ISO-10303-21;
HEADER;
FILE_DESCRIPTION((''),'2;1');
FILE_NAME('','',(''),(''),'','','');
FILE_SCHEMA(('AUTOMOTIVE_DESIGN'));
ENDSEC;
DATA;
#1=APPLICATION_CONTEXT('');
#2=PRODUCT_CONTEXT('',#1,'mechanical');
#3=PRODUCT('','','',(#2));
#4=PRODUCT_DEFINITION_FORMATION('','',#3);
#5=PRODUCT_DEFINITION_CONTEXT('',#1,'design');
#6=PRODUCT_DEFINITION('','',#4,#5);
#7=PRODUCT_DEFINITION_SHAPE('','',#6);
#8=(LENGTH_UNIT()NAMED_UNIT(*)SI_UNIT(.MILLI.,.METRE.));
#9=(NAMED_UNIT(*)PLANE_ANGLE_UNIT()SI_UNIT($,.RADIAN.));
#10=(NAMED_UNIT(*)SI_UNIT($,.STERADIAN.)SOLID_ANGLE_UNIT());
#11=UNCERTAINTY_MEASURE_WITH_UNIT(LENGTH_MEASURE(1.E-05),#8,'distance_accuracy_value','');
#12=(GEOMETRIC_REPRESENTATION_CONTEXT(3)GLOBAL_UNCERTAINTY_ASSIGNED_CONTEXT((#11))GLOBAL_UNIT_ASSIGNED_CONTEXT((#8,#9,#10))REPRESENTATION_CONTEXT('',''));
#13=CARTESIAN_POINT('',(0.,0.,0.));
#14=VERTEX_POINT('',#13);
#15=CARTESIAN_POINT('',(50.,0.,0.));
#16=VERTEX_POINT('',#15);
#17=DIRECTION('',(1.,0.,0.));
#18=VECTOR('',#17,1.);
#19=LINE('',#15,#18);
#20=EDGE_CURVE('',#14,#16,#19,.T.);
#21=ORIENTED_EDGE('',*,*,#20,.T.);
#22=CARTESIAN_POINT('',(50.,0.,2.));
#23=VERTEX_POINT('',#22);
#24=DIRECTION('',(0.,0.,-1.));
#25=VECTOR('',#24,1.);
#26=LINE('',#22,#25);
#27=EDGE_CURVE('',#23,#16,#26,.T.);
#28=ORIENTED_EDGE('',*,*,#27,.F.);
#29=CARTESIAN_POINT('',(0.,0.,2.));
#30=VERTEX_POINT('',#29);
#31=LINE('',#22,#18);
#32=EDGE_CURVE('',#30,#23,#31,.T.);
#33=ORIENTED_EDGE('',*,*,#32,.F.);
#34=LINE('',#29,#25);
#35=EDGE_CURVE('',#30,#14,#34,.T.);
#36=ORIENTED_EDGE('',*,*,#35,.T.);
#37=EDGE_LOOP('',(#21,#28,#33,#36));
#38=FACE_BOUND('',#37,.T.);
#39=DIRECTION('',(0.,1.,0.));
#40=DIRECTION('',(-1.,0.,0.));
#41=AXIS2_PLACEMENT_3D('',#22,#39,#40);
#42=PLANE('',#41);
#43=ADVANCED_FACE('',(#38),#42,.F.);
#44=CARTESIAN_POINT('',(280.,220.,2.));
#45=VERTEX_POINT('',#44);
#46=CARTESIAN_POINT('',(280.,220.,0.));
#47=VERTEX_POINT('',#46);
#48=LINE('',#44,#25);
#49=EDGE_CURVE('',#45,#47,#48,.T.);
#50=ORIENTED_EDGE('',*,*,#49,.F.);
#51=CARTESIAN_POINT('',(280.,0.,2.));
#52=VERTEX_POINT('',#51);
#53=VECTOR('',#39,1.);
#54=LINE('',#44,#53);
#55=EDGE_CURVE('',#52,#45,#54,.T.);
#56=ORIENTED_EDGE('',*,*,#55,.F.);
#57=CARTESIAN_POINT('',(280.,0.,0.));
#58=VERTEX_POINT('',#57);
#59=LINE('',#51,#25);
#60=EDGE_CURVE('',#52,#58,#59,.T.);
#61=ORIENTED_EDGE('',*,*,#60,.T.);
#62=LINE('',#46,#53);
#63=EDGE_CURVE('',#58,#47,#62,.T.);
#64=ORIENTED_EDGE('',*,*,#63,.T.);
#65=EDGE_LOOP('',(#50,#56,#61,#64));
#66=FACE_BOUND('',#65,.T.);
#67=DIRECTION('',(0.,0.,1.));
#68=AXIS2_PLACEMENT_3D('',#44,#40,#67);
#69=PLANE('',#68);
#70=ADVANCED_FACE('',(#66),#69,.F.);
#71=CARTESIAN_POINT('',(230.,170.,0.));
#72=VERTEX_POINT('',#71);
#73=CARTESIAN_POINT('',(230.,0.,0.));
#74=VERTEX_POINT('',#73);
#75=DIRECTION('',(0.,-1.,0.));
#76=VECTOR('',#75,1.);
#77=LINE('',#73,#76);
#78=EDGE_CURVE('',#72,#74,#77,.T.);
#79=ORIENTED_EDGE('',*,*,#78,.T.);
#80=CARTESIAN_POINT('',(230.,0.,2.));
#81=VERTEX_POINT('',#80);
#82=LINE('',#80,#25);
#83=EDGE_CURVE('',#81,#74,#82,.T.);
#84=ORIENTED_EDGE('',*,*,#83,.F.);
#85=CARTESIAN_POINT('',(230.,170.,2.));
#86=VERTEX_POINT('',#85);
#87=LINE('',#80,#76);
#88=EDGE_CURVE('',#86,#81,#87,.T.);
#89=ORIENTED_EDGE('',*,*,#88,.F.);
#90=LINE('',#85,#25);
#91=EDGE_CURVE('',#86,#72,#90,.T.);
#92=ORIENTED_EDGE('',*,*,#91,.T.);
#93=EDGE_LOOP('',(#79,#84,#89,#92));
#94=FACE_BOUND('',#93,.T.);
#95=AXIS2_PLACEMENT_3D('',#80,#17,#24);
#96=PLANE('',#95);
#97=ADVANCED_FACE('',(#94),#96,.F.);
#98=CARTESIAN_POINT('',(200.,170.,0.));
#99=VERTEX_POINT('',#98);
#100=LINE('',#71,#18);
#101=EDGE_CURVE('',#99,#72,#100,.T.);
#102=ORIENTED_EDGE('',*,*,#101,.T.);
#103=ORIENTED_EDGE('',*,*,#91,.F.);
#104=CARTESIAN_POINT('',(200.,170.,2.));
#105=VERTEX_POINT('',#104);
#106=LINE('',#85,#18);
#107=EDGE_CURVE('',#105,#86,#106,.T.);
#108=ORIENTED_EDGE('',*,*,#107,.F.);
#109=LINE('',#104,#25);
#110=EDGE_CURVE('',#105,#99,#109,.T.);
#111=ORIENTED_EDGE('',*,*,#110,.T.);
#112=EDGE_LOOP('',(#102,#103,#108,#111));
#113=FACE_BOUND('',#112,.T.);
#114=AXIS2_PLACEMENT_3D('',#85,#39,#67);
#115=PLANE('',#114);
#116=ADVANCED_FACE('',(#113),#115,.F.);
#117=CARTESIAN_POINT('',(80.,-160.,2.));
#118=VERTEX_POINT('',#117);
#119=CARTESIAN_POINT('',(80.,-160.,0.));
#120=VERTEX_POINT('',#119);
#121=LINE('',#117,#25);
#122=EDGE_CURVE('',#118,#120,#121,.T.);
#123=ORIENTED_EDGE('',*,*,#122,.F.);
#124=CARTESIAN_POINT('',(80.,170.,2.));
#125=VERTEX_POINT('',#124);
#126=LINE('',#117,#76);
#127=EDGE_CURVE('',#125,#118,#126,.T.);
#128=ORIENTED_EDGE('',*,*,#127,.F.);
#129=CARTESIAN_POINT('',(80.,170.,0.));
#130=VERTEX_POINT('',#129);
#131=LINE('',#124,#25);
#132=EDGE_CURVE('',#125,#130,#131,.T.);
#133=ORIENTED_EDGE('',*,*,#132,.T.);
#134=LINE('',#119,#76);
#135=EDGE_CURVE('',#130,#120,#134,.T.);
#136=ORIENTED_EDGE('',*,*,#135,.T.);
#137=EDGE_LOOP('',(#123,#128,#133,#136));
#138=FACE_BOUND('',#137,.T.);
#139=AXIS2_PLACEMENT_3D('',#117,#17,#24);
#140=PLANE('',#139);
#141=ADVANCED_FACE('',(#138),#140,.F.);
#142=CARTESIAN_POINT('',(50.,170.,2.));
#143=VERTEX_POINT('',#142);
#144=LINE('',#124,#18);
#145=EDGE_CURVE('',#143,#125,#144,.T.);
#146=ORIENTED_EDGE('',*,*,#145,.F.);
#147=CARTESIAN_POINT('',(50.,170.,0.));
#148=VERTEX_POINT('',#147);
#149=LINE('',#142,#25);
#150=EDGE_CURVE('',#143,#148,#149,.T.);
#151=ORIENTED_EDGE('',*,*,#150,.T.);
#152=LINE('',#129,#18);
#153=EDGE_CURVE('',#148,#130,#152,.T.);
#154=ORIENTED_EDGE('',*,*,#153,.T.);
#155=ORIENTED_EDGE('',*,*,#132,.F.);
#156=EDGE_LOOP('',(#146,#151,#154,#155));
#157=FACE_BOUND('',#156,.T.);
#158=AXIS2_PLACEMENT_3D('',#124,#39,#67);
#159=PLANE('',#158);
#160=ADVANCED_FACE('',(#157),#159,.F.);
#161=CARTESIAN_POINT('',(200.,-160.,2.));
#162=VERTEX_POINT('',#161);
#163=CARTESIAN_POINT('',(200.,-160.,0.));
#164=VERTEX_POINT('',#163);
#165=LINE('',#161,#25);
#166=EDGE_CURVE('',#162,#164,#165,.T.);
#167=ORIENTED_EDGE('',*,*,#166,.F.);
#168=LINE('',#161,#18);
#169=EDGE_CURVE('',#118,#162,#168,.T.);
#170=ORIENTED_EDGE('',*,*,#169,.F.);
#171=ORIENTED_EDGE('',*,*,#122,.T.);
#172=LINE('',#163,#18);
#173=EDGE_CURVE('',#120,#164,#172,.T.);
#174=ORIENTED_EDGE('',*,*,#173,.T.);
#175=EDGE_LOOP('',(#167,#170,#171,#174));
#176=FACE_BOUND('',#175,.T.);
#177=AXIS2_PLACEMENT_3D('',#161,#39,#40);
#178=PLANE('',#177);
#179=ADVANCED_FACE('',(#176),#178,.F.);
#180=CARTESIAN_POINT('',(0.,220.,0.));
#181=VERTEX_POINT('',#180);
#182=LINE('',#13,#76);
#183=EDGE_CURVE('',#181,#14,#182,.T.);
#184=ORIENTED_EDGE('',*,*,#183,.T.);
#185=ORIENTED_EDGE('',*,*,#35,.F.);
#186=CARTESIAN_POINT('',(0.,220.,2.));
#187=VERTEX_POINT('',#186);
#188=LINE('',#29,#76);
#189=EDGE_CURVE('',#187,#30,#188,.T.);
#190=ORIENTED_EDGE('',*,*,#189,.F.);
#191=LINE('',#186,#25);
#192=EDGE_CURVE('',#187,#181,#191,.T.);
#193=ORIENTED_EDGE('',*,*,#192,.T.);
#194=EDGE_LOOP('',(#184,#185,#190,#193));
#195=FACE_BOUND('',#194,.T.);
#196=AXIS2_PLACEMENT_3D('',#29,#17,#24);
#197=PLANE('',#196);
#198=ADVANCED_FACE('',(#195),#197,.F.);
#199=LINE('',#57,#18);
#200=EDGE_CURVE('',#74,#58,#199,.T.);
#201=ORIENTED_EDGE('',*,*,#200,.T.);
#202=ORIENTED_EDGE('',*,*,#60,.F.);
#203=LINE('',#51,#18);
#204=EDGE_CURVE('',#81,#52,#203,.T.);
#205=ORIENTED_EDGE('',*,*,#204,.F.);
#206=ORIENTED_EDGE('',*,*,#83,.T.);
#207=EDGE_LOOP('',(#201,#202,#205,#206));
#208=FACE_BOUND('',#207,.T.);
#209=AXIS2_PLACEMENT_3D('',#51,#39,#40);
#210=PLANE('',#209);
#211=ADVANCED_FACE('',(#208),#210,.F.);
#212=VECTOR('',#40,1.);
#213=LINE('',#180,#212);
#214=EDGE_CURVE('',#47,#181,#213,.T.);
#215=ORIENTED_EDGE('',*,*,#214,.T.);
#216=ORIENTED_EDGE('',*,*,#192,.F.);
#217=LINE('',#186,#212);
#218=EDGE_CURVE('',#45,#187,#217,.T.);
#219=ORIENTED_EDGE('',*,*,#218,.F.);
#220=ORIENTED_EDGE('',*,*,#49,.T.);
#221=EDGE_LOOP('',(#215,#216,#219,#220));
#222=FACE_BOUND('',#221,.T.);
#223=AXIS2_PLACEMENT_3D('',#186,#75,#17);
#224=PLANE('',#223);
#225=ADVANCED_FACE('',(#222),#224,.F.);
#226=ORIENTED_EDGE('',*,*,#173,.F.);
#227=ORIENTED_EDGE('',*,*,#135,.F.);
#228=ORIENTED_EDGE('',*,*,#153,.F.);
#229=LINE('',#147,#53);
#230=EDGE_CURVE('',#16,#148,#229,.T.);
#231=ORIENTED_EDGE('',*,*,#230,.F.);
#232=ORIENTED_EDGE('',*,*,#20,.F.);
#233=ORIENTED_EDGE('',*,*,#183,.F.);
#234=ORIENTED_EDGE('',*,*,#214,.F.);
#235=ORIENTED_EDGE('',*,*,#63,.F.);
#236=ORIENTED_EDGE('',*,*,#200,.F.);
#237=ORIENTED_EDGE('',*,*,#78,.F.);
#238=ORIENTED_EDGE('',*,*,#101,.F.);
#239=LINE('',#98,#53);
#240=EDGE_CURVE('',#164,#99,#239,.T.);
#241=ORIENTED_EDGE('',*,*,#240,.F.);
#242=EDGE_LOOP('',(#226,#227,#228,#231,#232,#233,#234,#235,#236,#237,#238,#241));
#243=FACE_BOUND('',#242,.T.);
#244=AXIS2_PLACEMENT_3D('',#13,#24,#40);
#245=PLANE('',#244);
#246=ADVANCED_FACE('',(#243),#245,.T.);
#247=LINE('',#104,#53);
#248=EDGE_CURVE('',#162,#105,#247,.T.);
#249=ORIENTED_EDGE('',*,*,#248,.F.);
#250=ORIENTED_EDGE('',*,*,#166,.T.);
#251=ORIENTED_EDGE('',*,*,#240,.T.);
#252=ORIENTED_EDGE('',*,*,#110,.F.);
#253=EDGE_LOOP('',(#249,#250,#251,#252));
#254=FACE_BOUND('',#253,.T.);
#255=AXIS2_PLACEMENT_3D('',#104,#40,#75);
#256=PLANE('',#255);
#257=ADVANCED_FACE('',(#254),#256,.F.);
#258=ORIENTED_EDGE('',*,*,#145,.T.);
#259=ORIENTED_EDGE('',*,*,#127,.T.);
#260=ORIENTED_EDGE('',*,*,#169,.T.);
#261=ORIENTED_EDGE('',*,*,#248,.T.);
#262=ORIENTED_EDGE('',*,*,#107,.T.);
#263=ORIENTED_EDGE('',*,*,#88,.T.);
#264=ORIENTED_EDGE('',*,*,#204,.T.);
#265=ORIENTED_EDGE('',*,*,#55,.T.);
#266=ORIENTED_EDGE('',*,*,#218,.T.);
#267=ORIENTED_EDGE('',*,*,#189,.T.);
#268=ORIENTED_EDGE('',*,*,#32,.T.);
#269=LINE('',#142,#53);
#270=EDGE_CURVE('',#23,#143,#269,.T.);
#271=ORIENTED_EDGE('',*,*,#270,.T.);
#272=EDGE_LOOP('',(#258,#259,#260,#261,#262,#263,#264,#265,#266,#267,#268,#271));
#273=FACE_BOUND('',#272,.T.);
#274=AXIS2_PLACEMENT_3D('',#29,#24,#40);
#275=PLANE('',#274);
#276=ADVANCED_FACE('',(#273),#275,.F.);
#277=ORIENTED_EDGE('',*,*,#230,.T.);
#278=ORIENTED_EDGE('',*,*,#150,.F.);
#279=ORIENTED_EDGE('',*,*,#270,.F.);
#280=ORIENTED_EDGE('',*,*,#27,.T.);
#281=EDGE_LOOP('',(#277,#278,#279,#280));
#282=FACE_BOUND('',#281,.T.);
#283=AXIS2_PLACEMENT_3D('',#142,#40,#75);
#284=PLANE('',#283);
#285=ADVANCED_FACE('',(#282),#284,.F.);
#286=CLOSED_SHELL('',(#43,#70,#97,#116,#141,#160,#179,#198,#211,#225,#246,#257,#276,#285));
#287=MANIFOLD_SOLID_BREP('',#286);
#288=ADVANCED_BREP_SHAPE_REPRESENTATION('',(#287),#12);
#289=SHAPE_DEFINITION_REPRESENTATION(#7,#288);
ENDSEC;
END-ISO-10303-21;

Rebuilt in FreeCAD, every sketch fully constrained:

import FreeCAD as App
import Part
import Sketcher
from FreeCAD import Vector


def add_polygon(sketch, points):
    """Adds a closed chain of lines whose ends are joined by coincident constraints."""
    first, n = sketch.GeometryCount, len(points)
    for a, b in zip(points, points[1:] + points[:1]):
        sketch.addGeometry(Part.LineSegment(App.Vector(*a, 0), App.Vector(*b, 0)), False)
    for i in range(n):
        sketch.addConstraint(Sketcher.Constraint("Coincident", first + i, 2, first + (i + 1) % n, 1))

doc = App.newDocument("Part")
body = doc.addObject("PartDesign::Body", "Body")

# Sketch on XY plane
sketch1 = body.newObject("Sketcher::SketchObject", "Sketch")
sketch1.AttachmentSupport = (doc.getObject("XY_Plane"), [""])
sketch1.MapMode = "FlatFace"
add_polygon(sketch1, [(0, 220), (0, 0), (50, 0), (50, 170), (80, 170), (80, -160), (200, -160), (200, 170), (230, 170), (230, 0), (280, 0), (280, 220)])  # lines 0-11
sketch1.addConstraint([
    Sketcher.Constraint("Vertical", 0),
    Sketcher.Constraint("Horizontal", 1),
    Sketcher.Constraint("Vertical", 2),
    Sketcher.Constraint("Horizontal", 3),
    Sketcher.Constraint("Vertical", 4),
    Sketcher.Constraint("Horizontal", 5),
    Sketcher.Constraint("Vertical", 6),
    Sketcher.Constraint("Horizontal", 7),
    Sketcher.Constraint("Vertical", 8),
    Sketcher.Constraint("Horizontal", 9),
    Sketcher.Constraint("Vertical", 10),
    Sketcher.Constraint("Horizontal", 11),
    Sketcher.Constraint("Coincident", 0, 2, -1, 1),
    Sketcher.Constraint("PointOnObject", 8, 2, -1),
    Sketcher.Constraint("Horizontal", 3, 2, 6, 2),
    Sketcher.Constraint("Equal", 3, 7),
    Sketcher.Constraint("Equal", 1, 9),
    Sketcher.Constraint("DistanceX", 1, 1, 1, 2, 50.0),
    Sketcher.Constraint("DistanceX", 3, 1, 3, 2, 30.0),
    Sketcher.Constraint("DistanceX", 5, 1, 5, 2, 120.0),
    Sketcher.Constraint("DistanceY", 0, 2, 0, 1, 220.0),
    Sketcher.Constraint("DistanceY", 2, 1, 2, 2, 170.0),
    Sketcher.Constraint("DistanceY", 4, 2, 4, 1, 330.0),
])
pad1 = body.newObject("PartDesign::Pad", "Pad")
pad1.Profile = sketch1
pad1.Length = 2

doc.recompute()
